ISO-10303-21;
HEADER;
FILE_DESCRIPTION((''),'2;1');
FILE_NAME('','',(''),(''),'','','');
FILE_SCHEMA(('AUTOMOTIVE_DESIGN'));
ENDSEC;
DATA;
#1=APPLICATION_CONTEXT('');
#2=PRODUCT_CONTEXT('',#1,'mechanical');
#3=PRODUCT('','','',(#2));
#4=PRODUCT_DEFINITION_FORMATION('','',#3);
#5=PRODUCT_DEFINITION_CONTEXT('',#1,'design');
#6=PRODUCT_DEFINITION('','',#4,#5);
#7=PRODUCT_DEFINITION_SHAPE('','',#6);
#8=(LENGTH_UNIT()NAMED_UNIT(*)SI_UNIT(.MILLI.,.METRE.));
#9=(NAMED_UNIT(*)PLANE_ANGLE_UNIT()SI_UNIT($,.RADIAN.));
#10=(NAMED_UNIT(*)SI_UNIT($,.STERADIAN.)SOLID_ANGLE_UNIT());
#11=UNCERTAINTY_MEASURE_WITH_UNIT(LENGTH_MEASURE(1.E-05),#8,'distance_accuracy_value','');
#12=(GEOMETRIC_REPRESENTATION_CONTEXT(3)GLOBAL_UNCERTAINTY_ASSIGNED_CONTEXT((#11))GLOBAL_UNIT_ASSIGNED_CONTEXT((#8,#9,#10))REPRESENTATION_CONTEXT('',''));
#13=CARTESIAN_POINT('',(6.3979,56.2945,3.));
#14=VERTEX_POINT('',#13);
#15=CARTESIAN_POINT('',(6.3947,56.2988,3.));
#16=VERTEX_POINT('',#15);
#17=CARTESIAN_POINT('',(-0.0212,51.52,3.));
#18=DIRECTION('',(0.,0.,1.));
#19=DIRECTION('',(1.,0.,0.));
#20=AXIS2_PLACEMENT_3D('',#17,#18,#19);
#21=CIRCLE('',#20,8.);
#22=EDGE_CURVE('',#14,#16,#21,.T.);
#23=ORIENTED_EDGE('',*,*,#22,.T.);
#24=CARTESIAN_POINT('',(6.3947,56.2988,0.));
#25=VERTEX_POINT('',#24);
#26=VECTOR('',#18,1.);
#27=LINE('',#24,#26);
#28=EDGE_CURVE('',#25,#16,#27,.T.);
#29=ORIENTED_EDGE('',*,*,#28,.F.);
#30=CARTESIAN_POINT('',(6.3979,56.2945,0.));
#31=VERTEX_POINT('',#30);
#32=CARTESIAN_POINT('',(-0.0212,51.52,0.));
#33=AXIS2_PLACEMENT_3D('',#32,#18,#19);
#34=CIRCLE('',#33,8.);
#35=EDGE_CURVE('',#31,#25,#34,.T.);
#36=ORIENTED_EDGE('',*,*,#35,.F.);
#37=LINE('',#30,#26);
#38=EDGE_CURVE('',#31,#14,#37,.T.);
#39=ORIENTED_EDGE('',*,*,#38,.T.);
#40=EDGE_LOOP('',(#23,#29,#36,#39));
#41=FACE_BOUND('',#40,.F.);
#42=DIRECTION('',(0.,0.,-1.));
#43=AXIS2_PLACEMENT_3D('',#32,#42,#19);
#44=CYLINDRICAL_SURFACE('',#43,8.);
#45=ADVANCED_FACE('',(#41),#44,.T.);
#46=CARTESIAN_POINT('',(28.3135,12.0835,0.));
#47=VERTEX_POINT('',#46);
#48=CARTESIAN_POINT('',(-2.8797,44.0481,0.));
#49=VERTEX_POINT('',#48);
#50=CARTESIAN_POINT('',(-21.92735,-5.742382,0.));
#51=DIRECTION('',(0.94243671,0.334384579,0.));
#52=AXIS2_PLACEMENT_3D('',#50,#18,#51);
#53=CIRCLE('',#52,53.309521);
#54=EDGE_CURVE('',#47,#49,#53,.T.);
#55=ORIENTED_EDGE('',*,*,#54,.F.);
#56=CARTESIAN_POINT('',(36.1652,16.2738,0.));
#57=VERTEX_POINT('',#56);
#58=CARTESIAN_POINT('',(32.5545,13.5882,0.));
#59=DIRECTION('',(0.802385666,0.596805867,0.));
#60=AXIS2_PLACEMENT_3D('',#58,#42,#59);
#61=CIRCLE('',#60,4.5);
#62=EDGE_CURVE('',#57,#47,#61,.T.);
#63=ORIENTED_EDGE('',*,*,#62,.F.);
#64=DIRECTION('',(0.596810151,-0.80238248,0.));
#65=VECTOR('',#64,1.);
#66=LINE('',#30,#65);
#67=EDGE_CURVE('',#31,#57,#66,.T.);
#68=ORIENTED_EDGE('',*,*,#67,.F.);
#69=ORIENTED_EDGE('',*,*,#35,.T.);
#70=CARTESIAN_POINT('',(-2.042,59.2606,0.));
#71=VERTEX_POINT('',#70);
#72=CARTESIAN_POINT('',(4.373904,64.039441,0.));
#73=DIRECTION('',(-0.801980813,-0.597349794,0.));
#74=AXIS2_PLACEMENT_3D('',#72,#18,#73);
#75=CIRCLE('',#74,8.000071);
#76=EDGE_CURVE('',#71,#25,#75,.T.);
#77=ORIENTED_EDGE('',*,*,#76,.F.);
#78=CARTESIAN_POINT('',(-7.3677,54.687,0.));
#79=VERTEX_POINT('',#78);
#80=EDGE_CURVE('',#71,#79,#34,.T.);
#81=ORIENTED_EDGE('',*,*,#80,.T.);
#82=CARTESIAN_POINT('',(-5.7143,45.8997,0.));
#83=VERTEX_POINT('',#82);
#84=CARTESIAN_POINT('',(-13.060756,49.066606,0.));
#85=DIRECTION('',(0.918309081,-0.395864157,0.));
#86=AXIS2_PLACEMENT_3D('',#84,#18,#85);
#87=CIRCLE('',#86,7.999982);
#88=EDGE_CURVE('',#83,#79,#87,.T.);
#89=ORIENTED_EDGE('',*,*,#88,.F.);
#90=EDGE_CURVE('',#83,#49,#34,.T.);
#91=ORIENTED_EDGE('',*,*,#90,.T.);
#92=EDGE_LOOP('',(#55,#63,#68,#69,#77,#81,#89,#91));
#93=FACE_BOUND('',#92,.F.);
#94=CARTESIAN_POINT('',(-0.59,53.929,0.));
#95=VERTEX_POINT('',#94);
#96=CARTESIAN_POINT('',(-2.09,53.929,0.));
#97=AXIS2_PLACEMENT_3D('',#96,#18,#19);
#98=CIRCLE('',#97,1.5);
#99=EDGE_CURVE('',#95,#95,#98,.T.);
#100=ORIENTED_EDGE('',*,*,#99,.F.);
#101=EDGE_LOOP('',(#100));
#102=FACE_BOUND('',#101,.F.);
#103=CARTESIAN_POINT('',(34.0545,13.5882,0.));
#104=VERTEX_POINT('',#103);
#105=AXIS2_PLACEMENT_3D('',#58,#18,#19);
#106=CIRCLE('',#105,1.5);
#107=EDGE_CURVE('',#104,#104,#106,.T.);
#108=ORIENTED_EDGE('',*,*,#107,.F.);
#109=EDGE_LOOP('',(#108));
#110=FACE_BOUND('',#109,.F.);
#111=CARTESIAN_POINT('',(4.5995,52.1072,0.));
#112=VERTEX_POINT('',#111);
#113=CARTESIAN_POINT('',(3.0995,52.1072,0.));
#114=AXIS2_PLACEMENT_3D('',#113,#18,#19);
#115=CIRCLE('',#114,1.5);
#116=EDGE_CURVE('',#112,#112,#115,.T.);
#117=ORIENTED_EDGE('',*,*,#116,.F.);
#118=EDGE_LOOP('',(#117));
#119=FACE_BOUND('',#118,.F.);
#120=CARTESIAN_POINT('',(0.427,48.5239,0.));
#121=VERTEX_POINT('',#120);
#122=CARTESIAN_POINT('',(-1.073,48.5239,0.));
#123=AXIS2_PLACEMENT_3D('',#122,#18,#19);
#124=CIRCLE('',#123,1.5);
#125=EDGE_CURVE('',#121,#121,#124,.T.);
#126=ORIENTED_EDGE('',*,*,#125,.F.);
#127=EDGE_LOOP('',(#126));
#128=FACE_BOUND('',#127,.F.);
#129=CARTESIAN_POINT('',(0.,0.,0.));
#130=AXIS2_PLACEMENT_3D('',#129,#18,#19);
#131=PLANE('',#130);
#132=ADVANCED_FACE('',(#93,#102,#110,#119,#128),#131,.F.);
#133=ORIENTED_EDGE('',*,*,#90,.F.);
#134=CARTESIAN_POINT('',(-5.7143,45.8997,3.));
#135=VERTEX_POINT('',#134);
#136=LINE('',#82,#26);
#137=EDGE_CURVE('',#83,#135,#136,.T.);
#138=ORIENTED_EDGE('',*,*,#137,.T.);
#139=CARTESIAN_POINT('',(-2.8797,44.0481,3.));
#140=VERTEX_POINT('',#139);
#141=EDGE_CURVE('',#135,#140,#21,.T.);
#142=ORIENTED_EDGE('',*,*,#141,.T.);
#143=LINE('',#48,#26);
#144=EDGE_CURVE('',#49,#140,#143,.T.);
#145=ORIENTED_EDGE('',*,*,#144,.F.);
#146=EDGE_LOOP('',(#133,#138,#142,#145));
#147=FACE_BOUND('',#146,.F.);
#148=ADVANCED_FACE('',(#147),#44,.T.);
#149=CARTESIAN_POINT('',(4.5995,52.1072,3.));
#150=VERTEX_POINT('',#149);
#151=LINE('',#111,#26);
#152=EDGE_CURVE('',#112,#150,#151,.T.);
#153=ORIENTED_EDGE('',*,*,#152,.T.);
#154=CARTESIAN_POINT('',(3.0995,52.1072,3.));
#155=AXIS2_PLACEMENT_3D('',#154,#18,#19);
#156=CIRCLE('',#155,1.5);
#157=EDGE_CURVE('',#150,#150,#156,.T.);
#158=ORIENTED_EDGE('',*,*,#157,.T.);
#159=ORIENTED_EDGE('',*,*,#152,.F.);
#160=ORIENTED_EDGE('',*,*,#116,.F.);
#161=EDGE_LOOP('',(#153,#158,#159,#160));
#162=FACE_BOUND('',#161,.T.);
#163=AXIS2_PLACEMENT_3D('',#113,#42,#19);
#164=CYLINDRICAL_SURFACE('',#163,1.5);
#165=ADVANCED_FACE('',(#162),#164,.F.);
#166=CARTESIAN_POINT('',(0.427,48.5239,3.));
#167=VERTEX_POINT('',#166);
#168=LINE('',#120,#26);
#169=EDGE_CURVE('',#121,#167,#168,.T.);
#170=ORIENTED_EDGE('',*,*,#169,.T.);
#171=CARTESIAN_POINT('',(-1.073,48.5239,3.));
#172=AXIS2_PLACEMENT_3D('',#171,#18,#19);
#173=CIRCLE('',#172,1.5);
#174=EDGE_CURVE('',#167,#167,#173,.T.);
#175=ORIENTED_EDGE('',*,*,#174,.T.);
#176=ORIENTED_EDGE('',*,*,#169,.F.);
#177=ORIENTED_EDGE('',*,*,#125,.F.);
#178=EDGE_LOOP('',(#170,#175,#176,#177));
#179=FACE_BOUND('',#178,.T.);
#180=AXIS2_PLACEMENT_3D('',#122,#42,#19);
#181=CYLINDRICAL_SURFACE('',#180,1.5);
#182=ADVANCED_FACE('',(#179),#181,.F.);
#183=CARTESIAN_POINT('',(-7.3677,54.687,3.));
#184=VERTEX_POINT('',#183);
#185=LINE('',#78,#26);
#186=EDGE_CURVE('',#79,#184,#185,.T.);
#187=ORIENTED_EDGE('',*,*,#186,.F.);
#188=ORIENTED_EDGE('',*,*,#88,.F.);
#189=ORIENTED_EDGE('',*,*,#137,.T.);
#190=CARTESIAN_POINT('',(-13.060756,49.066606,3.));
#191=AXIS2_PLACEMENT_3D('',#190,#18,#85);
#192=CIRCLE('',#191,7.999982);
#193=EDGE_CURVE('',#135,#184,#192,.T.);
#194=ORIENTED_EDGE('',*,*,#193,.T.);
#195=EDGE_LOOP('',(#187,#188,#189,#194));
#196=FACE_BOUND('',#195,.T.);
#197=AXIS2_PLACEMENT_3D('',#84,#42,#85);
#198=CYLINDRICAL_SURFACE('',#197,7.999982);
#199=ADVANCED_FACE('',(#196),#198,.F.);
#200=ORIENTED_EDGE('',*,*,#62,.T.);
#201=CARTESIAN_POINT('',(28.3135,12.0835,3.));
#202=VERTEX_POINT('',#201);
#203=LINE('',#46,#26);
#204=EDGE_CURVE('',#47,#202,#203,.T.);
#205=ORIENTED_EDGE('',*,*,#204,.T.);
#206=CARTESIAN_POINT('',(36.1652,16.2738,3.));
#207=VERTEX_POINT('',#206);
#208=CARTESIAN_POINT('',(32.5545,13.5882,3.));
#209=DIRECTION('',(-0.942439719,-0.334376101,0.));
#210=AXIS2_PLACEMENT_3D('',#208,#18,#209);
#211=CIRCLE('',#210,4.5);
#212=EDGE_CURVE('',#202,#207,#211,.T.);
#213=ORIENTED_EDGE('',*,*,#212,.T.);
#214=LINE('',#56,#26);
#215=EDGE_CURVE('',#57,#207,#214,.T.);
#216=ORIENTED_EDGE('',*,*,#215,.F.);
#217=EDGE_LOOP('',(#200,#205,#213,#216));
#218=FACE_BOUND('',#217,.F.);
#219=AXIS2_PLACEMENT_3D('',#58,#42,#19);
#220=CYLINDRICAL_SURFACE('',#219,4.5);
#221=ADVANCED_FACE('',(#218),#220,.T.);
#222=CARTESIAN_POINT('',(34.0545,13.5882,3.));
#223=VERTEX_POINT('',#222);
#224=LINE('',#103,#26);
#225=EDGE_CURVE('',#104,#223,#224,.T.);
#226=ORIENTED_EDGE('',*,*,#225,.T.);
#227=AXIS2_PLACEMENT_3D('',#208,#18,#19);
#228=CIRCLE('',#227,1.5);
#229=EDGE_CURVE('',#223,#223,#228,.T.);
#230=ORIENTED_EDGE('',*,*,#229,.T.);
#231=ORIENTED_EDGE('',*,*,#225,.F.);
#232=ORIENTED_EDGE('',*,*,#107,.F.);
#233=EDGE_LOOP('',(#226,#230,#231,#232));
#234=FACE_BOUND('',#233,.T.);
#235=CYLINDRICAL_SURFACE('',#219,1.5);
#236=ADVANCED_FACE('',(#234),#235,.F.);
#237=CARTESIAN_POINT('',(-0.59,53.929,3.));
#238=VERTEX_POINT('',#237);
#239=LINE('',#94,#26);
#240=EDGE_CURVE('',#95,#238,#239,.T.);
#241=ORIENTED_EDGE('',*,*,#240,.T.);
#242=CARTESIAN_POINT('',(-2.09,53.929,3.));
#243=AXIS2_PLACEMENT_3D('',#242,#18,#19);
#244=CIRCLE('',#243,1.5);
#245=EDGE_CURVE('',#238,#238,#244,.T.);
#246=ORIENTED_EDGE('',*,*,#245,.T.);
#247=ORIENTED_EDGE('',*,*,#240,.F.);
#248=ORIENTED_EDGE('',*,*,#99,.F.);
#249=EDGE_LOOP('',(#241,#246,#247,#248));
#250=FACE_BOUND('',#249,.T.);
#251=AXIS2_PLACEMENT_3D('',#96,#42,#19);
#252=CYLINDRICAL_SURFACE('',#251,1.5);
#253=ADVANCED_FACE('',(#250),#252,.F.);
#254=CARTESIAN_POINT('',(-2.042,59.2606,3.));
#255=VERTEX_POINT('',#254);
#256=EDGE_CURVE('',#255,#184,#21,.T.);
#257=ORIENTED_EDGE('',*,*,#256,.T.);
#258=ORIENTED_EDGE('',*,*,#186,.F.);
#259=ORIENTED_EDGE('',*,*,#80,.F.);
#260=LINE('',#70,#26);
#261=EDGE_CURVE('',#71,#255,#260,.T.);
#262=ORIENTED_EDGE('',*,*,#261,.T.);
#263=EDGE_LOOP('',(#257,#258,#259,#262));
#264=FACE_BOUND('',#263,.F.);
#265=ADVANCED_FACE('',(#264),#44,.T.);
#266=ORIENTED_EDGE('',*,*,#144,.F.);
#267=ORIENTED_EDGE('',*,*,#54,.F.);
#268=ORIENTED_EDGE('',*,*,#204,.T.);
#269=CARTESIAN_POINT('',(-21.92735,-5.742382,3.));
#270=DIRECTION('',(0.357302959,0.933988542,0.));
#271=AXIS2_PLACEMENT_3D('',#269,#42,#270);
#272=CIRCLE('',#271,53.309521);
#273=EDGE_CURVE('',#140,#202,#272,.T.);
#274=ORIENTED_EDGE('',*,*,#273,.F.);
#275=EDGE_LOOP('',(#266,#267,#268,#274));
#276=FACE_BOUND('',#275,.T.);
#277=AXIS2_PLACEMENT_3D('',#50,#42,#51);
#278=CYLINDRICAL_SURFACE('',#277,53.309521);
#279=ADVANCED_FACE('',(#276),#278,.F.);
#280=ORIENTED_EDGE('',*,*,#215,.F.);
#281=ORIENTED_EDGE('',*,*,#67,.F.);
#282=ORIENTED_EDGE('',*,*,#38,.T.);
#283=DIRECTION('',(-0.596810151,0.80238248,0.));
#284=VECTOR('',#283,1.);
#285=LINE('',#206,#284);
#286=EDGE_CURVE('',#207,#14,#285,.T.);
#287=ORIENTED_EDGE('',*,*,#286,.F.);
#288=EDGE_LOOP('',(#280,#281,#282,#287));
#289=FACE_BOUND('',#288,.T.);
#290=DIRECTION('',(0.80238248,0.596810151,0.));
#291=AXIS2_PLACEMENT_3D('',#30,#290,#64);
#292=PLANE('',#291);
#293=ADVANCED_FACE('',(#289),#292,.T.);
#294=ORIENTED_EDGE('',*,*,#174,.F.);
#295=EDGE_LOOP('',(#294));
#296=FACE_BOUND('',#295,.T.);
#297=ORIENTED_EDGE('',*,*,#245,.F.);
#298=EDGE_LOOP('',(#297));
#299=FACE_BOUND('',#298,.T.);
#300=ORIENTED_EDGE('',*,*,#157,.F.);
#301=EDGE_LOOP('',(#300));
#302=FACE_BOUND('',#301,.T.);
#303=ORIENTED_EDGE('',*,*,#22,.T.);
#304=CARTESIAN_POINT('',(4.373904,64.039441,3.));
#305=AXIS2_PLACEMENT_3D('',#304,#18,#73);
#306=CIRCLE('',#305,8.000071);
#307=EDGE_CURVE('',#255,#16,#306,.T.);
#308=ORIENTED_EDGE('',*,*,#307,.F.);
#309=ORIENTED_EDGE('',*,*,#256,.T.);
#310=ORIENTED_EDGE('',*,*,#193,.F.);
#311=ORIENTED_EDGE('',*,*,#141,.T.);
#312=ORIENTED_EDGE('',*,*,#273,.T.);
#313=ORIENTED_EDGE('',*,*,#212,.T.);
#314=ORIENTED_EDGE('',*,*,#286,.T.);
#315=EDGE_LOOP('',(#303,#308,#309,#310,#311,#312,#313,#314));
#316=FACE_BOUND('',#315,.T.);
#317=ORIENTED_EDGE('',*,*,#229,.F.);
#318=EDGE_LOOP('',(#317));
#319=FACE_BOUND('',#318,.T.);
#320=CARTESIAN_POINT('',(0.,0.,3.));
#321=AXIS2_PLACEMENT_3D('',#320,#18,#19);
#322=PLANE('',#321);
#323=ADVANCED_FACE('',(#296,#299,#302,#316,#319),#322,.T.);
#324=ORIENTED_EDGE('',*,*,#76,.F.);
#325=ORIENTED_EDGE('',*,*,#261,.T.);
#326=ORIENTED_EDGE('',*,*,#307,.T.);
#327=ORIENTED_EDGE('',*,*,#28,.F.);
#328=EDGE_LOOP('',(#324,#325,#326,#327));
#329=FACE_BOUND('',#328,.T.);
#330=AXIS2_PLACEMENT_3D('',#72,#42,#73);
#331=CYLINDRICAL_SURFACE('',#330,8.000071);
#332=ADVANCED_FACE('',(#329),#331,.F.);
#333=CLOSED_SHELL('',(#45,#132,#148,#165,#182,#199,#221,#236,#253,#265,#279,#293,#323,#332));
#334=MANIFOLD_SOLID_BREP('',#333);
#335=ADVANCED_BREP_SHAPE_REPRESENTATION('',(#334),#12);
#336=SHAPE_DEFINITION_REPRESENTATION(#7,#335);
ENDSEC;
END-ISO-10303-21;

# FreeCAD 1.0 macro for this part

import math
import FreeCAD as App
import Part
import Sketcher
from FreeCAD import Vector
Q = App.Units.Quantity

doc = App.newDocument("Part")
body = doc.addObject("PartDesign::Body", "Body")

# Sketch on XY plane
sketch1 = body.newObject("Sketcher::SketchObject", "Sketch")
sketch1.AttachmentSupport = (doc.getObject("XY_Plane"), [""])
sketch1.MapMode = "FlatFace"
sketch1.addGeometry([
    Part.LineSegment(Vector(36.1652, 16.2738, 0), Vector(6.3979, 56.2945, 0)),  # 0
    Part.ArcOfCircle(Part.Circle(Vector(-0.0212, 51.52, 0), Vector(0, 0, 1), 8), math.radians(36.641718), math.radians(36.680106)),  # 1
    Part.ArcOfCircle(Part.Circle(Vector(4.3738, 64.0393, 0), Vector(0, 0, 1), 7.999904), math.radians(-143.32004), math.radians(-75.367767)),  # 2
    Part.ArcOfCircle(Part.Circle(Vector(-0.0212, 51.52, 0), Vector(0, 0, 1), 8), math.radians(104.631359), math.radians(156.679627)),  # 3
    Part.ArcOfCircle(Part.Circle(Vector(-13.0607, 49.0666, 0), Vector(0, 0, 1), 7.999928), math.radians(-23.319999), math.radians(44.632328)),  # 4
    Part.ArcOfCircle(Part.Circle(Vector(-0.0212, 51.52, 0), Vector(0, 0, 1), 8), math.radians(-135.368684), math.radians(-110.935185)),  # 5
    Part.ArcOfCircle(Part.Circle(Vector(-21.9277, -5.7426, 0), Vector(0, 0, 1), 53.309924), math.radians(19.535214), math.radians(69.065078)),  # 6
    Part.ArcOfCircle(Part.Circle(Vector(32.5545, 13.5882, 0), Vector(0, 0, 1), 4.5), math.radians(-160.465397), math.radians(36.641476)),  # 7
    Part.Circle(Vector(32.5545, 13.5882, 0), Vector(0, 0, 1), 1.5),  # 8
    Part.Circle(Vector(3.0995, 52.1072, 0), Vector(0, 0, 1), 1.5),  # 9
    Part.Circle(Vector(-2.09, 53.929, 0), Vector(0, 0, 1), 1.5),  # 10
    Part.Circle(Vector(-1.073, 48.5239, 0), Vector(0, 0, 1), 1.5),  # 11
], False)
sketch1.addConstraint([
    Sketcher.Constraint("Coincident", 0, 2, 1, 1),
    Sketcher.Constraint("Coincident", 1, 2, 2, 2),
    Sketcher.Constraint("Coincident", 2, 1, 3, 1),
    Sketcher.Constraint("Coincident", 3, 2, 4, 2),
    Sketcher.Constraint("Coincident", 4, 1, 5, 1),
    Sketcher.Constraint("Coincident", 5, 2, 6, 2),
    Sketcher.Constraint("Coincident", 6, 1, 7, 1),
    Sketcher.Constraint("Coincident", 7, 2, 0, 1),
    Sketcher.Constraint("Coincident", 3, 3, 1, 3),
    Sketcher.Constraint("Coincident", 5, 3, 1, 3),
    Sketcher.Constraint("Coincident", 8, 3, 7, 3),
    Sketcher.Constraint("Diameter", 8, Q("3 mm")),
    Sketcher.Constraint("Diameter", 9, Q("3 mm")),
    Sketcher.Constraint("Diameter", 10, Q("3 mm")),
    Sketcher.Constraint("Diameter", 11, Q("3 mm")),
    Sketcher.Constraint("Radius", 1, Q("8 mm")),
    Sketcher.Constraint("Radius", 2, Q("8 mm")),
    Sketcher.Constraint("Radius", 3, Q("8 mm")),
    Sketcher.Constraint("Radius", 4, Q("8 mm")),
    Sketcher.Constraint("Radius", 5, Q("8 mm")),
    Sketcher.Constraint("Radius", 7, Q("4.5 mm")),
    Sketcher.Constraint("Radius", 6, Q("53.31 mm")),
    Sketcher.Constraint("DistanceY", -1, 1, 1, 3, Q("51.52 mm")),
    Sketcher.Constraint("DistanceX", 10, 3, -1, 1, Q("2.09 mm")),
    Sketcher.Constraint("DistanceY", -1, 1, 10, 3, Q("53.929 mm")),
    Sketcher.Constraint("DistanceX", 11, 3, -1, 1, Q("1.073 mm")),
    Sketcher.Constraint("DistanceY", -1, 1, 11, 3, Q("48.524 mm")),
    Sketcher.Constraint("DistanceX", -1, 1, 0, 2, Q("6.398 mm")),
    Sketcher.Constraint("DistanceX", 2, 1, -1, 1, Q("2.042 mm")),
    Sketcher.Constraint("DistanceY", -1, 1, 3, 2, Q("54.687 mm")),
    Sketcher.Constraint("DistanceY", -1, 1, 5, 2, Q("44.048 mm")),
    Sketcher.Constraint("DistanceX", 1, 3, 2, 3, Q("4.395 mm")),
    Sketcher.Constraint("DistanceX", 6, 3, 4, 3, Q("8.867 mm")),
    Sketcher.Constraint("DistanceY", 6, 3, 2, 3, Q("69.782 mm")),
    Sketcher.Constraint("DistanceY", 7, 3, 2, 3, Q("50.451 mm")),
    Sketcher.Constraint("DistanceY", 9, 3, 2, 3, Q("11.932 mm")),
    Sketcher.Constraint("DistanceX", 1, 3, 0, 2, Q("6.419 mm")),
    Sketcher.Constraint("DistanceX", 6, 1, 7, 3, Q("4.241 mm")),
    Sketcher.Constraint("DistanceX", 9, 3, 6, 1, Q("25.214 mm")),
    Sketcher.Constraint("DistanceX", 5, 2, 7, 2, Q("39.045 mm")),
])
pad1 = body.newObject("PartDesign::Pad", "Pad")
pad1.Profile = sketch1
pad1.Length = 3

doc.recompute()
